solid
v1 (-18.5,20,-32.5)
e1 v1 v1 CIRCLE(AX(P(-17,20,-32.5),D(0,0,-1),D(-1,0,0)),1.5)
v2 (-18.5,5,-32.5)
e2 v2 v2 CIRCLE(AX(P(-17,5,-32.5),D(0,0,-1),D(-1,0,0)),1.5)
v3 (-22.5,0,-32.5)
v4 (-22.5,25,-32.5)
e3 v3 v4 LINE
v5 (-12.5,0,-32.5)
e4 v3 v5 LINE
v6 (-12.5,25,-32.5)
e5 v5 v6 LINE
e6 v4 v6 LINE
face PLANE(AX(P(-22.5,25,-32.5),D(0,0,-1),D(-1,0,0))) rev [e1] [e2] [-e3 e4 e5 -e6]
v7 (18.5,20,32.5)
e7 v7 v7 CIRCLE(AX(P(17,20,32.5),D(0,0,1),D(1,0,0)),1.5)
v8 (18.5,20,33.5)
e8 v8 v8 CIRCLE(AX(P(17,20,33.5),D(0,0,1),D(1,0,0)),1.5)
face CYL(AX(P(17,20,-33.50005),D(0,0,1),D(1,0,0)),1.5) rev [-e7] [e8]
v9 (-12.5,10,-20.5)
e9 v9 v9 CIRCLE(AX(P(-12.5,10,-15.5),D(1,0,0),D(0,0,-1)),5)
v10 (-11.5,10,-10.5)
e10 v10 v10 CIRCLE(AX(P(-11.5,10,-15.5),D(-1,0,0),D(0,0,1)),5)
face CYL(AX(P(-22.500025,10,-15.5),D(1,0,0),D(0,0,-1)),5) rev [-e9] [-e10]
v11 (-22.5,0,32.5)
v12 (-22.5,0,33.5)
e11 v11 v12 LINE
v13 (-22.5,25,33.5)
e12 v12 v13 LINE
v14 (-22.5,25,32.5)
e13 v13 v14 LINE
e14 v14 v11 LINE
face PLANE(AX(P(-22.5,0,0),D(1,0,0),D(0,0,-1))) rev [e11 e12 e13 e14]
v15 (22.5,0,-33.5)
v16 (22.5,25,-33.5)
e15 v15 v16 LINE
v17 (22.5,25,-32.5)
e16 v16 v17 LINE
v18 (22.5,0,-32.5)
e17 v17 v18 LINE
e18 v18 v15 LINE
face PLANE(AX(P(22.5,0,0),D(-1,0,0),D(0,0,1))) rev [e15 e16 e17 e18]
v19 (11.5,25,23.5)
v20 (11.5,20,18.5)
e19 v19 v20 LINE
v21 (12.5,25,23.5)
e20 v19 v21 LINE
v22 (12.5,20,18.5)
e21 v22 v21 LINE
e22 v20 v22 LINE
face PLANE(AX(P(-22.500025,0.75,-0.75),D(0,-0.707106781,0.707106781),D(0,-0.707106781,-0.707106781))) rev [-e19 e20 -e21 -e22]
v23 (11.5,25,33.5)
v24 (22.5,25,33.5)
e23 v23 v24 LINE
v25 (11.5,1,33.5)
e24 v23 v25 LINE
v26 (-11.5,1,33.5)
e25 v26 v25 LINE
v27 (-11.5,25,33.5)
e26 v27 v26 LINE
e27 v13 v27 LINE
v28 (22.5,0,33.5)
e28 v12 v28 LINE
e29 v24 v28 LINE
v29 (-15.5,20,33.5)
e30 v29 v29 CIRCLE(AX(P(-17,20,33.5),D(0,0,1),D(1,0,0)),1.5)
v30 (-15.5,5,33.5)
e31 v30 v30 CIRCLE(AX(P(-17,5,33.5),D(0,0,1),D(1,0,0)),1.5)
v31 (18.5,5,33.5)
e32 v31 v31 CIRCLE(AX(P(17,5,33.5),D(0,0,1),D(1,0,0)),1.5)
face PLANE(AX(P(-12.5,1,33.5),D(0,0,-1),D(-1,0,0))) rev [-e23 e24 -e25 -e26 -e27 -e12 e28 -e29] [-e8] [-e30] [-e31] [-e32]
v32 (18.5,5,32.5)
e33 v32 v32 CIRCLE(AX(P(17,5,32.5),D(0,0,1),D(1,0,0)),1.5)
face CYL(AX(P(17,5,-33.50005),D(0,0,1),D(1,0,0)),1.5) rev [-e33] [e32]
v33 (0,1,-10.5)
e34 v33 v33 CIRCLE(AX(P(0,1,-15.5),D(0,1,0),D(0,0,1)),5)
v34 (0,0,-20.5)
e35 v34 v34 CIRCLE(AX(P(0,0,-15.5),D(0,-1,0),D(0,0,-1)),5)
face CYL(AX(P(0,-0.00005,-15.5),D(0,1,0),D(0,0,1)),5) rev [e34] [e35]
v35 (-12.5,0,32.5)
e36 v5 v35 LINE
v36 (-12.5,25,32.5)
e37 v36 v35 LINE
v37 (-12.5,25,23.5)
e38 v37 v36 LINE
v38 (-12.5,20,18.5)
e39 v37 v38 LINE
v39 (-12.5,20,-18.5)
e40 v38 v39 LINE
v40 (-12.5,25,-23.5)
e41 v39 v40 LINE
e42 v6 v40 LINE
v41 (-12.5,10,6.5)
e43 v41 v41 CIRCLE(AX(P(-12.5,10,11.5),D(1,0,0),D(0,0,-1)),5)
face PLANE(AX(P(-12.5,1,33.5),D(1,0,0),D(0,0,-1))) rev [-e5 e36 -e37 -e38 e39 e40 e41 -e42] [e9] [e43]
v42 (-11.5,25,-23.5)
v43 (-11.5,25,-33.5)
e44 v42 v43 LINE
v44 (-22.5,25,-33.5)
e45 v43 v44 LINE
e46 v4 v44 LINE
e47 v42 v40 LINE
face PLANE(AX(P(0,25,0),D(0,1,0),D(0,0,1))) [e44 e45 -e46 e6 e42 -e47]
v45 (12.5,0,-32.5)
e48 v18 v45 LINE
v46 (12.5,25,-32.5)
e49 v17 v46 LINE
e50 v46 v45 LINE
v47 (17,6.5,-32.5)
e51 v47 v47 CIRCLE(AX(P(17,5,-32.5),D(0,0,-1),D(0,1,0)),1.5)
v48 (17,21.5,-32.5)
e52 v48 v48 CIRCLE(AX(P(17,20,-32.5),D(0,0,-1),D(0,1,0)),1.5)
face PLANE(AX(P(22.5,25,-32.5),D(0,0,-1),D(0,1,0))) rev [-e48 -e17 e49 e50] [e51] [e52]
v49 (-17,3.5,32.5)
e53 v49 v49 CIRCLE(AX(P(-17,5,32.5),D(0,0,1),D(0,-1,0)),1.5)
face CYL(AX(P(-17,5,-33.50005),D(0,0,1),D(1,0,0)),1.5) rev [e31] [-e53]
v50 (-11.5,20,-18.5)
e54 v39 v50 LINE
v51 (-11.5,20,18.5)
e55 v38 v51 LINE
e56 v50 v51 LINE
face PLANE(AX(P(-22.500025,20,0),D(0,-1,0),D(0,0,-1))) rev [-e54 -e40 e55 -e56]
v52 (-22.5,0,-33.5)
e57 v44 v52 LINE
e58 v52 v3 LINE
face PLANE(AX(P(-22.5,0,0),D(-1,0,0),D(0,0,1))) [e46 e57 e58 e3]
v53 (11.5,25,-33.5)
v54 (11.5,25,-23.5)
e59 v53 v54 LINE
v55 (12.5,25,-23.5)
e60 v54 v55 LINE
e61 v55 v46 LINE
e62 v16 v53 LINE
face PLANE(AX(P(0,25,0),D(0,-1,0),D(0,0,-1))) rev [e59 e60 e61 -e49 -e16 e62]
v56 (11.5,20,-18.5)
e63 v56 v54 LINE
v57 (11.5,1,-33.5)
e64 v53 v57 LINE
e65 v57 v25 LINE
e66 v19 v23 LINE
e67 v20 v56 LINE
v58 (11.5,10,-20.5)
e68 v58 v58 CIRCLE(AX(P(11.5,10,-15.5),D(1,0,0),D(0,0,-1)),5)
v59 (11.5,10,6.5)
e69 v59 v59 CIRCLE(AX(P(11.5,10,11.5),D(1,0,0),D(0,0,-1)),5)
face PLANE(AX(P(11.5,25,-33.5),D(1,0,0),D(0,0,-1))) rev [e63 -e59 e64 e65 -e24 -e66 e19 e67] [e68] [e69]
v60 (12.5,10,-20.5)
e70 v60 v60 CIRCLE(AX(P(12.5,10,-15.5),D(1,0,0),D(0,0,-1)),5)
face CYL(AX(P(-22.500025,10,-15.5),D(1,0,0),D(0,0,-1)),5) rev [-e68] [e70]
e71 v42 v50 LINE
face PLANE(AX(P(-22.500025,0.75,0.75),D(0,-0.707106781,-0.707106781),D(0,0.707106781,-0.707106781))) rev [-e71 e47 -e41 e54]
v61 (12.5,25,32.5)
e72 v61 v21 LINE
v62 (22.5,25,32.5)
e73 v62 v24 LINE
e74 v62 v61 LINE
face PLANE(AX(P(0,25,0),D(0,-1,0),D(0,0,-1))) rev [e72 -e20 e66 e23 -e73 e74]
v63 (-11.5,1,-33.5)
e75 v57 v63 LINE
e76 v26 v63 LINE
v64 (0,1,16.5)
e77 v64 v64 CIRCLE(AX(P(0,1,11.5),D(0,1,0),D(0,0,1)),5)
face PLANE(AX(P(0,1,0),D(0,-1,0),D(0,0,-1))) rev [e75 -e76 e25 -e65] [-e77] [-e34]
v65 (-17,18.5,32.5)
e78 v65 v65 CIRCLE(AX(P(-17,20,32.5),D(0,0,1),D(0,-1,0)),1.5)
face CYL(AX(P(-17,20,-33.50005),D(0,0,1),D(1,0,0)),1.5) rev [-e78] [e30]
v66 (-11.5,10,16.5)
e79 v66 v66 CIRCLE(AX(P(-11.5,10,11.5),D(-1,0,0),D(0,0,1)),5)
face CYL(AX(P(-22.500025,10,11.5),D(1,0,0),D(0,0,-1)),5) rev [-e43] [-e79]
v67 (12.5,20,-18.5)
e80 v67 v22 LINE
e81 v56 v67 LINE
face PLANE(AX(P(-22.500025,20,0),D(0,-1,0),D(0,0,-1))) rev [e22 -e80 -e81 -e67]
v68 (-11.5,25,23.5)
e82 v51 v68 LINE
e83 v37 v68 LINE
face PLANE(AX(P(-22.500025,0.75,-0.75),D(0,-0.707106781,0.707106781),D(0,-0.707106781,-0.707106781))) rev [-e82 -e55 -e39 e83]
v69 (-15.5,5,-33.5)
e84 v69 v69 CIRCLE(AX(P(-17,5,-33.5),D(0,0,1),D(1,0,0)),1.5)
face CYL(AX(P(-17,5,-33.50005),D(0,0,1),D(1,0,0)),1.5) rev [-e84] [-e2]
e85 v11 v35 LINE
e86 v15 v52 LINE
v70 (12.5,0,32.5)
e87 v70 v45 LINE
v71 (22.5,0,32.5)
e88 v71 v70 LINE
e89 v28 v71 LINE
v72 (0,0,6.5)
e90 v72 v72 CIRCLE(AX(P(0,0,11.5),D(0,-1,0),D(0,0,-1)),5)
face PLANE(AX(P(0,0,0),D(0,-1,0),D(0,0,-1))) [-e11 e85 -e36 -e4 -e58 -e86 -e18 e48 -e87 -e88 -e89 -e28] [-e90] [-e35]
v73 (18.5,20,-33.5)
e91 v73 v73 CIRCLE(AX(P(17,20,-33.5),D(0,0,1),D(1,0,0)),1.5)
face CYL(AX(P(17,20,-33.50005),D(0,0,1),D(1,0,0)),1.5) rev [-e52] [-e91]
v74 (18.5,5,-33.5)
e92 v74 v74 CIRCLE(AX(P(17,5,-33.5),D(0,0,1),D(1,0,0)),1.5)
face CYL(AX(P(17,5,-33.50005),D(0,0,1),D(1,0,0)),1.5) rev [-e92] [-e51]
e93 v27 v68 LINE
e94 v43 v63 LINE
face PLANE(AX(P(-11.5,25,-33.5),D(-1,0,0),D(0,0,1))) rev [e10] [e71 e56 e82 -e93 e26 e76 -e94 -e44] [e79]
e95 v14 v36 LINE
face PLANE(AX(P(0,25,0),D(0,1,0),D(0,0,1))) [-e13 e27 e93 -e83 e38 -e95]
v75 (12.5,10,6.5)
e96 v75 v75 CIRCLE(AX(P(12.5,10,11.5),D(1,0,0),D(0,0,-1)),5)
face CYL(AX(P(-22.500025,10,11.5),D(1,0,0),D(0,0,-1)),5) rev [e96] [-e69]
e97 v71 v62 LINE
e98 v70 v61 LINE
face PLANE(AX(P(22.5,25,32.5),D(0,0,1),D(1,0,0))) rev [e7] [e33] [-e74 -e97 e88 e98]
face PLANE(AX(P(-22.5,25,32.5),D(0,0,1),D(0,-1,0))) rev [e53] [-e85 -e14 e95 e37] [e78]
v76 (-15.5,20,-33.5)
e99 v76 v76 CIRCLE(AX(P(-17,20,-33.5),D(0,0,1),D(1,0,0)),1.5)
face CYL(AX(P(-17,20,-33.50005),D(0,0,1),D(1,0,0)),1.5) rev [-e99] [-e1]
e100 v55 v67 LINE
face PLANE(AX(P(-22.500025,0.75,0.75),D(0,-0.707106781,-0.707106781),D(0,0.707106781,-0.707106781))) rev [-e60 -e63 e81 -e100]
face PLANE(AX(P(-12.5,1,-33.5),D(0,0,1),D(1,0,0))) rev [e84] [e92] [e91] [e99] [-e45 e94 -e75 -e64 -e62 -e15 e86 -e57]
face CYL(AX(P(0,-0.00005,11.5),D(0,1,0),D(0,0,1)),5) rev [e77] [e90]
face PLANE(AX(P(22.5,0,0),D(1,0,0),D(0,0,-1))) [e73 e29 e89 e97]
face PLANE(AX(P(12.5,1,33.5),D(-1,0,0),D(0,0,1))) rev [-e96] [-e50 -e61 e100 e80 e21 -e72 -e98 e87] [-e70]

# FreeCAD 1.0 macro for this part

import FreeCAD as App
import Part
import Sketcher


def add_polygon(sketch, points):
    """Adds a closed chain of lines whose ends are joined by coincident constraints."""
    first, n = sketch.GeometryCount, len(points)
    for a, b in zip(points, points[1:] + points[:1]):
        sketch.addGeometry(Part.LineSegment(App.Vector(*a, 0), App.Vector(*b, 0)), False)
    for i in range(n):
        sketch.addConstraint(Sketcher.Constraint("Coincident", first + i, 2, first + (i + 1) % n, 1))

doc = App.newDocument("Part")
body = doc.addObject("PartDesign::Body", "Body")

# Sketch on XZ plane
sketch1 = body.newObject("Sketcher::SketchObject", "Sketch")
sketch1.AttachmentSupport = (doc.getObject("XZ_Plane"), [""])
sketch1.MapMode = "FlatFace"
add_polygon(sketch1, [(-12, -34), (-12, 34), (12, 34), (12, -34)])  # lines 0-3
sketch1.addConstraint([
    Sketcher.Constraint("Vertical", 0),
    Sketcher.Constraint("Horizontal", 1),
    Sketcher.Constraint("Vertical", 2),
    Sketcher.Constraint("Horizontal", 3),
    Sketcher.Constraint("Symmetric", 0, 2, 2, 2, -1, 1),
    Sketcher.Constraint("DistanceX", 1, 1, 1, 2, 25.0),
    Sketcher.Constraint("DistanceY", 0, 1, 0, 2, 67.0),
])
pad1 = body.newObject("PartDesign::Pad", "Pad")
pad1.Profile = sketch1
pad1.Length = 1
pad1.Reversed = True

# Sketch on XZ plane
sketch2 = body.newObject("Sketcher::SketchObject", "Sketch001")
sketch2.AttachmentSupport = (doc.getObject("XZ_Plane"), [""])
sketch2.MapMode = "FlatFace"
sketch2.AttachmentOffset = App.Placement(App.Vector(0, 0, -1), App.Rotation())
add_polygon(sketch2, [(11.5, -33.5), (11.5, 33.5), (12.5, 33.5), (12.5, -33.5)])  # lines 0-3
add_polygon(sketch2, [(-12.5, -33.5), (-12.5, 33.5), (-11.5, 33.5), (-11.5, -33.5)])  # lines 4-7
sketch2.addConstraint([
    Sketcher.Constraint("Vertical", 0),
    Sketcher.Constraint("Horizontal", 1),
    Sketcher.Constraint("Vertical", 2),
    Sketcher.Constraint("Horizontal", 3),
    Sketcher.Constraint("Vertical", 4),
    Sketcher.Constraint("Horizontal", 5),
    Sketcher.Constraint("Vertical", 6),
    Sketcher.Constraint("Horizontal", 7),
    Sketcher.Constraint("Symmetric", 2, 2, 4, 2, -1, 1),
    Sketcher.Constraint("Symmetric", 0, 2, 6, 2, -1, 1),
    Sketcher.Constraint("Horizontal", 1, 2, 4, 2),
    Sketcher.Constraint("DistanceX", 1, 1, 1, 2, 1.0),
    Sketcher.Constraint("DistanceY", 0, 1, 0, 2, 67.0),
    Sketcher.Constraint("DistanceX", 4, 2, 0, 2, 24.0),
])
pad2 = body.newObject("PartDesign::Pad", "Pad001")
pad2.Profile = sketch2
pad2.Length = 24
pad2.Reversed = True

# Sketch on YZ plane
sketch3 = body.newObject("Sketcher::SketchObject", "Sketch002")
sketch3.AttachmentSupport = (doc.getObject("YZ_Plane"), [""])
sketch3.MapMode = "FlatFace"
sketch3.AttachmentOffset = App.Placement(App.Vector(0, 0, 12.5), App.Rotation())
add_polygon(sketch3, [(25, 33.5), (0, 33.5), (0, 32.5), (25, 32.5)])  # lines 0-3
add_polygon(sketch3, [(25, -32.5), (0, -32.5), (0, -33.5), (25, -33.5)])  # lines 4-7
sketch3.addConstraint([
    Sketcher.Constraint("Horizontal", 0),
    Sketcher.Constraint("Vertical", 1),
    Sketcher.Constraint("Horizontal", 2),
    Sketcher.Constraint("Vertical", 3),
    Sketcher.Constraint("Horizontal", 4),
    Sketcher.Constraint("Vertical", 5),
    Sketcher.Constraint("Horizontal", 6),
    Sketcher.Constraint("Vertical", 7),
    Sketcher.Constraint("Symmetric", 1, 2, 4, 2, -1, 1),
    Sketcher.Constraint("Symmetric", 0, 2, 5, 2, -1),
    Sketcher.Constraint("Vertical", 3, 2, 6, 2),
    Sketcher.Constraint("DistanceX", 0, 2, 0, 1, 25.0),
    Sketcher.Constraint("DistanceY", 1, 2, 1, 1, 1.0),
    Sketcher.Constraint("DistanceY", 4, 2, 1, 2, 65.0),
])
pad3 = body.newObject("PartDesign::Pad", "Pad002")
pad3.Profile = sketch3
pad3.Length = 10

# Sketch on YZ plane
sketch4 = body.newObject("Sketcher::SketchObject", "Sketch003")
sketch4.AttachmentSupport = (doc.getObject("YZ_Plane"), [""])
sketch4.MapMode = "FlatFace"
sketch4.AttachmentOffset = App.Placement(App.Vector(0, 0, -12.5), App.Rotation())
add_polygon(sketch4, [(25, -33.5), (0, -33.5), (0, -32.5), (25, -32.5)])  # lines 0-3
add_polygon(sketch4, [(25, 32.5), (0, 32.5), (0, 33.5), (25, 33.5)])  # lines 4-7
sketch4.addConstraint([
    Sketcher.Constraint("Horizontal", 0),
    Sketcher.Constraint("Vertical", 1),
    Sketcher.Constraint("Horizontal", 2),
    Sketcher.Constraint("Vertical", 3),
    Sketcher.Constraint("Horizontal", 4),
    Sketcher.Constraint("Vertical", 5),
    Sketcher.Constraint("Horizontal", 6),
    Sketcher.Constraint("Vertical", 7),
    Sketcher.Constraint("Symmetric", 1, 2, 4, 2, -1, 1),
    Sketcher.Constraint("Symmetric", 0, 2, 5, 2, -1),
    Sketcher.Constraint("Vertical", 3, 2, 6, 2),
    Sketcher.Constraint("DistanceX", 0, 2, 0, 1, 25.0),
    Sketcher.Constraint("DistanceY", 1, 1, 1, 2, 1.0),
    Sketcher.Constraint("DistanceY", 1, 2, 4, 2, 65.0),
])
pad4 = body.newObject("PartDesign::Pad", "Pad003")
pad4.Profile = sketch4
pad4.Length = 10
pad4.Reversed = True

# Sketch on XZ plane
sketch5 = body.newObject("Sketcher::SketchObject", "Sketch004")
sketch5.AttachmentSupport = (doc.getObject("XZ_Plane"), [""])
sketch5.MapMode = "FlatFace"
sketch5.AttachmentOffset = App.Placement(App.Vector(0, 0, -1), App.Rotation())
sketch5.addGeometry([
    Part.Circle(App.Vector(0, 12, 0), App.Vector(0, 0, 1), 5),
    Part.Circle(App.Vector(0, -16, 0), App.Vector(0, 0, 1), 5),
], False)
sketch5.addConstraint([
    Sketcher.Constraint("Equal", 0, 1),
    Sketcher.Constraint("PointOnObject", 0, 3, -2),
    Sketcher.Constraint("PointOnObject", 1, 3, -2),
    Sketcher.Constraint("Diameter", 0, 10.0),
    Sketcher.Constraint("DistanceY", 1, 3, 0, 3, 27.0),
    Sketcher.Constraint("DistanceY", -1, 1, 0, 3, 11.5),
])
pocket1 = body.newObject("PartDesign::Pocket", "Pocket")
pocket1.Profile = sketch5
pocket1.Type = "ThroughAll"
pocket1.Reversed = True

# Sketch on XY plane
sketch6 = body.newObject("Sketcher::SketchObject", "Sketch005")
sketch6.AttachmentSupport = (doc.getObject("XY_Plane"), [""])
sketch6.MapMode = "FlatFace"
sketch6.AttachmentOffset = App.Placement(App.Vector(0, 0, 33.5), App.Rotation())
sketch6.addGeometry([
    Part.Circle(App.Vector(17, 20, 0), App.Vector(0, 0, 1), 1.5),
    Part.Circle(App.Vector(17, 5, 0), App.Vector(0, 0, 1), 1.5),
    Part.Circle(App.Vector(-17, 20, 0), App.Vector(0, 0, 1), 1.5),
    Part.Circle(App.Vector(-17, 5, 0), App.Vector(0, 0, 1), 1.5),
], False)
sketch6.addConstraint([
    Sketcher.Constraint("Equal", 0, 1),
    Sketcher.Constraint("Equal", 1, 2),
    Sketcher.Constraint("Equal", 2, 3),
    Sketcher.Constraint("Symmetric", 0, 3, 2, 3, -2),
    Sketcher.Constraint("Symmetric", 1, 3, 3, 3, -2),
    Sketcher.Constraint("Vertical", 0, 3, 1, 3),
    Sketcher.Constraint("Diameter", 0, 3.0),
    Sketcher.Constraint("DistanceX", -1, 1, 0, 3, 17.0),
    Sketcher.Constraint("DistanceY", -1, 1, 0, 3, 20.0),
    Sketcher.Constraint("DistanceY", -1, 1, 1, 3, 5.0),
])
pocket2 = body.newObject("PartDesign::Pocket", "Pocket001")
pocket2.Profile = sketch6
pocket2.Type = "ThroughAll"

# Sketch on YZ plane
sketch7 = body.newObject("Sketcher::SketchObject", "Sketch006")
sketch7.AttachmentSupport = (doc.getObject("YZ_Plane"), [""])
sketch7.MapMode = "FlatFace"
sketch7.AttachmentOffset = App.Placement(App.Vector(0, 0, 12.5), App.Rotation())
add_polygon(sketch7, [(25, 24), (20, 18), (20, -18), (25, -24)])  # lines 0-3
sketch7.addConstraint([
    Sketcher.Constraint("Vertical", 1),
    Sketcher.Constraint("Vertical", 3),
    Sketcher.Constraint("Perpendicular", 0, 2),
    Sketcher.Constraint("Equal", 0, 2),
    Sketcher.Constraint("DistanceY", 1, 2, 1, 1, 37.0),
    Sketcher.Constraint("DistanceY", 3, 1, 3, 2, 47.0),
    Sketcher.Constraint("DistanceX", -1, 1, 0, 2, 20.0),
    Sketcher.Constraint("DistanceY", -1, 1, 0, 2, 18.5),
])
pocket3 = body.newObject("PartDesign::Pocket", "Pocket002")
pocket3.Profile = sketch7
pocket3.Type = "ThroughAll"
pocket3.Midplane = True

# Sketch on YZ plane
sketch8 = body.newObject("Sketcher::SketchObject", "Sketch007")
sketch8.AttachmentSupport = (doc.getObject("YZ_Plane"), [""])
sketch8.MapMode = "FlatFace"
sketch8.AttachmentOffset = App.Placement(App.Vector(0, 0, 12.5), App.Rotation())
sketch8.addGeometry([
    Part.Circle(App.Vector(10, 12, 0), App.Vector(0, 0, 1), 5),
    Part.Circle(App.Vector(10, -16, 0), App.Vector(0, 0, 1), 5),
], False)
sketch8.addConstraint([
    Sketcher.Constraint("Equal", 0, 1),
    Sketcher.Constraint("Vertical", 0, 3, 1, 3),
    Sketcher.Constraint("Diameter", 0, 10.0),
    Sketcher.Constraint("DistanceX", -1, 1, 0, 3, 10.0),
    Sketcher.Constraint("DistanceY", 1, 3, 0, 3, 27.0),
    Sketcher.Constraint("DistanceY", -1, 1, 0, 3, 11.5),
])
pocket4 = body.newObject("PartDesign::Pocket", "Pocket003")
pocket4.Profile = sketch8
pocket4.Type = "ThroughAll"

doc.recompute()
